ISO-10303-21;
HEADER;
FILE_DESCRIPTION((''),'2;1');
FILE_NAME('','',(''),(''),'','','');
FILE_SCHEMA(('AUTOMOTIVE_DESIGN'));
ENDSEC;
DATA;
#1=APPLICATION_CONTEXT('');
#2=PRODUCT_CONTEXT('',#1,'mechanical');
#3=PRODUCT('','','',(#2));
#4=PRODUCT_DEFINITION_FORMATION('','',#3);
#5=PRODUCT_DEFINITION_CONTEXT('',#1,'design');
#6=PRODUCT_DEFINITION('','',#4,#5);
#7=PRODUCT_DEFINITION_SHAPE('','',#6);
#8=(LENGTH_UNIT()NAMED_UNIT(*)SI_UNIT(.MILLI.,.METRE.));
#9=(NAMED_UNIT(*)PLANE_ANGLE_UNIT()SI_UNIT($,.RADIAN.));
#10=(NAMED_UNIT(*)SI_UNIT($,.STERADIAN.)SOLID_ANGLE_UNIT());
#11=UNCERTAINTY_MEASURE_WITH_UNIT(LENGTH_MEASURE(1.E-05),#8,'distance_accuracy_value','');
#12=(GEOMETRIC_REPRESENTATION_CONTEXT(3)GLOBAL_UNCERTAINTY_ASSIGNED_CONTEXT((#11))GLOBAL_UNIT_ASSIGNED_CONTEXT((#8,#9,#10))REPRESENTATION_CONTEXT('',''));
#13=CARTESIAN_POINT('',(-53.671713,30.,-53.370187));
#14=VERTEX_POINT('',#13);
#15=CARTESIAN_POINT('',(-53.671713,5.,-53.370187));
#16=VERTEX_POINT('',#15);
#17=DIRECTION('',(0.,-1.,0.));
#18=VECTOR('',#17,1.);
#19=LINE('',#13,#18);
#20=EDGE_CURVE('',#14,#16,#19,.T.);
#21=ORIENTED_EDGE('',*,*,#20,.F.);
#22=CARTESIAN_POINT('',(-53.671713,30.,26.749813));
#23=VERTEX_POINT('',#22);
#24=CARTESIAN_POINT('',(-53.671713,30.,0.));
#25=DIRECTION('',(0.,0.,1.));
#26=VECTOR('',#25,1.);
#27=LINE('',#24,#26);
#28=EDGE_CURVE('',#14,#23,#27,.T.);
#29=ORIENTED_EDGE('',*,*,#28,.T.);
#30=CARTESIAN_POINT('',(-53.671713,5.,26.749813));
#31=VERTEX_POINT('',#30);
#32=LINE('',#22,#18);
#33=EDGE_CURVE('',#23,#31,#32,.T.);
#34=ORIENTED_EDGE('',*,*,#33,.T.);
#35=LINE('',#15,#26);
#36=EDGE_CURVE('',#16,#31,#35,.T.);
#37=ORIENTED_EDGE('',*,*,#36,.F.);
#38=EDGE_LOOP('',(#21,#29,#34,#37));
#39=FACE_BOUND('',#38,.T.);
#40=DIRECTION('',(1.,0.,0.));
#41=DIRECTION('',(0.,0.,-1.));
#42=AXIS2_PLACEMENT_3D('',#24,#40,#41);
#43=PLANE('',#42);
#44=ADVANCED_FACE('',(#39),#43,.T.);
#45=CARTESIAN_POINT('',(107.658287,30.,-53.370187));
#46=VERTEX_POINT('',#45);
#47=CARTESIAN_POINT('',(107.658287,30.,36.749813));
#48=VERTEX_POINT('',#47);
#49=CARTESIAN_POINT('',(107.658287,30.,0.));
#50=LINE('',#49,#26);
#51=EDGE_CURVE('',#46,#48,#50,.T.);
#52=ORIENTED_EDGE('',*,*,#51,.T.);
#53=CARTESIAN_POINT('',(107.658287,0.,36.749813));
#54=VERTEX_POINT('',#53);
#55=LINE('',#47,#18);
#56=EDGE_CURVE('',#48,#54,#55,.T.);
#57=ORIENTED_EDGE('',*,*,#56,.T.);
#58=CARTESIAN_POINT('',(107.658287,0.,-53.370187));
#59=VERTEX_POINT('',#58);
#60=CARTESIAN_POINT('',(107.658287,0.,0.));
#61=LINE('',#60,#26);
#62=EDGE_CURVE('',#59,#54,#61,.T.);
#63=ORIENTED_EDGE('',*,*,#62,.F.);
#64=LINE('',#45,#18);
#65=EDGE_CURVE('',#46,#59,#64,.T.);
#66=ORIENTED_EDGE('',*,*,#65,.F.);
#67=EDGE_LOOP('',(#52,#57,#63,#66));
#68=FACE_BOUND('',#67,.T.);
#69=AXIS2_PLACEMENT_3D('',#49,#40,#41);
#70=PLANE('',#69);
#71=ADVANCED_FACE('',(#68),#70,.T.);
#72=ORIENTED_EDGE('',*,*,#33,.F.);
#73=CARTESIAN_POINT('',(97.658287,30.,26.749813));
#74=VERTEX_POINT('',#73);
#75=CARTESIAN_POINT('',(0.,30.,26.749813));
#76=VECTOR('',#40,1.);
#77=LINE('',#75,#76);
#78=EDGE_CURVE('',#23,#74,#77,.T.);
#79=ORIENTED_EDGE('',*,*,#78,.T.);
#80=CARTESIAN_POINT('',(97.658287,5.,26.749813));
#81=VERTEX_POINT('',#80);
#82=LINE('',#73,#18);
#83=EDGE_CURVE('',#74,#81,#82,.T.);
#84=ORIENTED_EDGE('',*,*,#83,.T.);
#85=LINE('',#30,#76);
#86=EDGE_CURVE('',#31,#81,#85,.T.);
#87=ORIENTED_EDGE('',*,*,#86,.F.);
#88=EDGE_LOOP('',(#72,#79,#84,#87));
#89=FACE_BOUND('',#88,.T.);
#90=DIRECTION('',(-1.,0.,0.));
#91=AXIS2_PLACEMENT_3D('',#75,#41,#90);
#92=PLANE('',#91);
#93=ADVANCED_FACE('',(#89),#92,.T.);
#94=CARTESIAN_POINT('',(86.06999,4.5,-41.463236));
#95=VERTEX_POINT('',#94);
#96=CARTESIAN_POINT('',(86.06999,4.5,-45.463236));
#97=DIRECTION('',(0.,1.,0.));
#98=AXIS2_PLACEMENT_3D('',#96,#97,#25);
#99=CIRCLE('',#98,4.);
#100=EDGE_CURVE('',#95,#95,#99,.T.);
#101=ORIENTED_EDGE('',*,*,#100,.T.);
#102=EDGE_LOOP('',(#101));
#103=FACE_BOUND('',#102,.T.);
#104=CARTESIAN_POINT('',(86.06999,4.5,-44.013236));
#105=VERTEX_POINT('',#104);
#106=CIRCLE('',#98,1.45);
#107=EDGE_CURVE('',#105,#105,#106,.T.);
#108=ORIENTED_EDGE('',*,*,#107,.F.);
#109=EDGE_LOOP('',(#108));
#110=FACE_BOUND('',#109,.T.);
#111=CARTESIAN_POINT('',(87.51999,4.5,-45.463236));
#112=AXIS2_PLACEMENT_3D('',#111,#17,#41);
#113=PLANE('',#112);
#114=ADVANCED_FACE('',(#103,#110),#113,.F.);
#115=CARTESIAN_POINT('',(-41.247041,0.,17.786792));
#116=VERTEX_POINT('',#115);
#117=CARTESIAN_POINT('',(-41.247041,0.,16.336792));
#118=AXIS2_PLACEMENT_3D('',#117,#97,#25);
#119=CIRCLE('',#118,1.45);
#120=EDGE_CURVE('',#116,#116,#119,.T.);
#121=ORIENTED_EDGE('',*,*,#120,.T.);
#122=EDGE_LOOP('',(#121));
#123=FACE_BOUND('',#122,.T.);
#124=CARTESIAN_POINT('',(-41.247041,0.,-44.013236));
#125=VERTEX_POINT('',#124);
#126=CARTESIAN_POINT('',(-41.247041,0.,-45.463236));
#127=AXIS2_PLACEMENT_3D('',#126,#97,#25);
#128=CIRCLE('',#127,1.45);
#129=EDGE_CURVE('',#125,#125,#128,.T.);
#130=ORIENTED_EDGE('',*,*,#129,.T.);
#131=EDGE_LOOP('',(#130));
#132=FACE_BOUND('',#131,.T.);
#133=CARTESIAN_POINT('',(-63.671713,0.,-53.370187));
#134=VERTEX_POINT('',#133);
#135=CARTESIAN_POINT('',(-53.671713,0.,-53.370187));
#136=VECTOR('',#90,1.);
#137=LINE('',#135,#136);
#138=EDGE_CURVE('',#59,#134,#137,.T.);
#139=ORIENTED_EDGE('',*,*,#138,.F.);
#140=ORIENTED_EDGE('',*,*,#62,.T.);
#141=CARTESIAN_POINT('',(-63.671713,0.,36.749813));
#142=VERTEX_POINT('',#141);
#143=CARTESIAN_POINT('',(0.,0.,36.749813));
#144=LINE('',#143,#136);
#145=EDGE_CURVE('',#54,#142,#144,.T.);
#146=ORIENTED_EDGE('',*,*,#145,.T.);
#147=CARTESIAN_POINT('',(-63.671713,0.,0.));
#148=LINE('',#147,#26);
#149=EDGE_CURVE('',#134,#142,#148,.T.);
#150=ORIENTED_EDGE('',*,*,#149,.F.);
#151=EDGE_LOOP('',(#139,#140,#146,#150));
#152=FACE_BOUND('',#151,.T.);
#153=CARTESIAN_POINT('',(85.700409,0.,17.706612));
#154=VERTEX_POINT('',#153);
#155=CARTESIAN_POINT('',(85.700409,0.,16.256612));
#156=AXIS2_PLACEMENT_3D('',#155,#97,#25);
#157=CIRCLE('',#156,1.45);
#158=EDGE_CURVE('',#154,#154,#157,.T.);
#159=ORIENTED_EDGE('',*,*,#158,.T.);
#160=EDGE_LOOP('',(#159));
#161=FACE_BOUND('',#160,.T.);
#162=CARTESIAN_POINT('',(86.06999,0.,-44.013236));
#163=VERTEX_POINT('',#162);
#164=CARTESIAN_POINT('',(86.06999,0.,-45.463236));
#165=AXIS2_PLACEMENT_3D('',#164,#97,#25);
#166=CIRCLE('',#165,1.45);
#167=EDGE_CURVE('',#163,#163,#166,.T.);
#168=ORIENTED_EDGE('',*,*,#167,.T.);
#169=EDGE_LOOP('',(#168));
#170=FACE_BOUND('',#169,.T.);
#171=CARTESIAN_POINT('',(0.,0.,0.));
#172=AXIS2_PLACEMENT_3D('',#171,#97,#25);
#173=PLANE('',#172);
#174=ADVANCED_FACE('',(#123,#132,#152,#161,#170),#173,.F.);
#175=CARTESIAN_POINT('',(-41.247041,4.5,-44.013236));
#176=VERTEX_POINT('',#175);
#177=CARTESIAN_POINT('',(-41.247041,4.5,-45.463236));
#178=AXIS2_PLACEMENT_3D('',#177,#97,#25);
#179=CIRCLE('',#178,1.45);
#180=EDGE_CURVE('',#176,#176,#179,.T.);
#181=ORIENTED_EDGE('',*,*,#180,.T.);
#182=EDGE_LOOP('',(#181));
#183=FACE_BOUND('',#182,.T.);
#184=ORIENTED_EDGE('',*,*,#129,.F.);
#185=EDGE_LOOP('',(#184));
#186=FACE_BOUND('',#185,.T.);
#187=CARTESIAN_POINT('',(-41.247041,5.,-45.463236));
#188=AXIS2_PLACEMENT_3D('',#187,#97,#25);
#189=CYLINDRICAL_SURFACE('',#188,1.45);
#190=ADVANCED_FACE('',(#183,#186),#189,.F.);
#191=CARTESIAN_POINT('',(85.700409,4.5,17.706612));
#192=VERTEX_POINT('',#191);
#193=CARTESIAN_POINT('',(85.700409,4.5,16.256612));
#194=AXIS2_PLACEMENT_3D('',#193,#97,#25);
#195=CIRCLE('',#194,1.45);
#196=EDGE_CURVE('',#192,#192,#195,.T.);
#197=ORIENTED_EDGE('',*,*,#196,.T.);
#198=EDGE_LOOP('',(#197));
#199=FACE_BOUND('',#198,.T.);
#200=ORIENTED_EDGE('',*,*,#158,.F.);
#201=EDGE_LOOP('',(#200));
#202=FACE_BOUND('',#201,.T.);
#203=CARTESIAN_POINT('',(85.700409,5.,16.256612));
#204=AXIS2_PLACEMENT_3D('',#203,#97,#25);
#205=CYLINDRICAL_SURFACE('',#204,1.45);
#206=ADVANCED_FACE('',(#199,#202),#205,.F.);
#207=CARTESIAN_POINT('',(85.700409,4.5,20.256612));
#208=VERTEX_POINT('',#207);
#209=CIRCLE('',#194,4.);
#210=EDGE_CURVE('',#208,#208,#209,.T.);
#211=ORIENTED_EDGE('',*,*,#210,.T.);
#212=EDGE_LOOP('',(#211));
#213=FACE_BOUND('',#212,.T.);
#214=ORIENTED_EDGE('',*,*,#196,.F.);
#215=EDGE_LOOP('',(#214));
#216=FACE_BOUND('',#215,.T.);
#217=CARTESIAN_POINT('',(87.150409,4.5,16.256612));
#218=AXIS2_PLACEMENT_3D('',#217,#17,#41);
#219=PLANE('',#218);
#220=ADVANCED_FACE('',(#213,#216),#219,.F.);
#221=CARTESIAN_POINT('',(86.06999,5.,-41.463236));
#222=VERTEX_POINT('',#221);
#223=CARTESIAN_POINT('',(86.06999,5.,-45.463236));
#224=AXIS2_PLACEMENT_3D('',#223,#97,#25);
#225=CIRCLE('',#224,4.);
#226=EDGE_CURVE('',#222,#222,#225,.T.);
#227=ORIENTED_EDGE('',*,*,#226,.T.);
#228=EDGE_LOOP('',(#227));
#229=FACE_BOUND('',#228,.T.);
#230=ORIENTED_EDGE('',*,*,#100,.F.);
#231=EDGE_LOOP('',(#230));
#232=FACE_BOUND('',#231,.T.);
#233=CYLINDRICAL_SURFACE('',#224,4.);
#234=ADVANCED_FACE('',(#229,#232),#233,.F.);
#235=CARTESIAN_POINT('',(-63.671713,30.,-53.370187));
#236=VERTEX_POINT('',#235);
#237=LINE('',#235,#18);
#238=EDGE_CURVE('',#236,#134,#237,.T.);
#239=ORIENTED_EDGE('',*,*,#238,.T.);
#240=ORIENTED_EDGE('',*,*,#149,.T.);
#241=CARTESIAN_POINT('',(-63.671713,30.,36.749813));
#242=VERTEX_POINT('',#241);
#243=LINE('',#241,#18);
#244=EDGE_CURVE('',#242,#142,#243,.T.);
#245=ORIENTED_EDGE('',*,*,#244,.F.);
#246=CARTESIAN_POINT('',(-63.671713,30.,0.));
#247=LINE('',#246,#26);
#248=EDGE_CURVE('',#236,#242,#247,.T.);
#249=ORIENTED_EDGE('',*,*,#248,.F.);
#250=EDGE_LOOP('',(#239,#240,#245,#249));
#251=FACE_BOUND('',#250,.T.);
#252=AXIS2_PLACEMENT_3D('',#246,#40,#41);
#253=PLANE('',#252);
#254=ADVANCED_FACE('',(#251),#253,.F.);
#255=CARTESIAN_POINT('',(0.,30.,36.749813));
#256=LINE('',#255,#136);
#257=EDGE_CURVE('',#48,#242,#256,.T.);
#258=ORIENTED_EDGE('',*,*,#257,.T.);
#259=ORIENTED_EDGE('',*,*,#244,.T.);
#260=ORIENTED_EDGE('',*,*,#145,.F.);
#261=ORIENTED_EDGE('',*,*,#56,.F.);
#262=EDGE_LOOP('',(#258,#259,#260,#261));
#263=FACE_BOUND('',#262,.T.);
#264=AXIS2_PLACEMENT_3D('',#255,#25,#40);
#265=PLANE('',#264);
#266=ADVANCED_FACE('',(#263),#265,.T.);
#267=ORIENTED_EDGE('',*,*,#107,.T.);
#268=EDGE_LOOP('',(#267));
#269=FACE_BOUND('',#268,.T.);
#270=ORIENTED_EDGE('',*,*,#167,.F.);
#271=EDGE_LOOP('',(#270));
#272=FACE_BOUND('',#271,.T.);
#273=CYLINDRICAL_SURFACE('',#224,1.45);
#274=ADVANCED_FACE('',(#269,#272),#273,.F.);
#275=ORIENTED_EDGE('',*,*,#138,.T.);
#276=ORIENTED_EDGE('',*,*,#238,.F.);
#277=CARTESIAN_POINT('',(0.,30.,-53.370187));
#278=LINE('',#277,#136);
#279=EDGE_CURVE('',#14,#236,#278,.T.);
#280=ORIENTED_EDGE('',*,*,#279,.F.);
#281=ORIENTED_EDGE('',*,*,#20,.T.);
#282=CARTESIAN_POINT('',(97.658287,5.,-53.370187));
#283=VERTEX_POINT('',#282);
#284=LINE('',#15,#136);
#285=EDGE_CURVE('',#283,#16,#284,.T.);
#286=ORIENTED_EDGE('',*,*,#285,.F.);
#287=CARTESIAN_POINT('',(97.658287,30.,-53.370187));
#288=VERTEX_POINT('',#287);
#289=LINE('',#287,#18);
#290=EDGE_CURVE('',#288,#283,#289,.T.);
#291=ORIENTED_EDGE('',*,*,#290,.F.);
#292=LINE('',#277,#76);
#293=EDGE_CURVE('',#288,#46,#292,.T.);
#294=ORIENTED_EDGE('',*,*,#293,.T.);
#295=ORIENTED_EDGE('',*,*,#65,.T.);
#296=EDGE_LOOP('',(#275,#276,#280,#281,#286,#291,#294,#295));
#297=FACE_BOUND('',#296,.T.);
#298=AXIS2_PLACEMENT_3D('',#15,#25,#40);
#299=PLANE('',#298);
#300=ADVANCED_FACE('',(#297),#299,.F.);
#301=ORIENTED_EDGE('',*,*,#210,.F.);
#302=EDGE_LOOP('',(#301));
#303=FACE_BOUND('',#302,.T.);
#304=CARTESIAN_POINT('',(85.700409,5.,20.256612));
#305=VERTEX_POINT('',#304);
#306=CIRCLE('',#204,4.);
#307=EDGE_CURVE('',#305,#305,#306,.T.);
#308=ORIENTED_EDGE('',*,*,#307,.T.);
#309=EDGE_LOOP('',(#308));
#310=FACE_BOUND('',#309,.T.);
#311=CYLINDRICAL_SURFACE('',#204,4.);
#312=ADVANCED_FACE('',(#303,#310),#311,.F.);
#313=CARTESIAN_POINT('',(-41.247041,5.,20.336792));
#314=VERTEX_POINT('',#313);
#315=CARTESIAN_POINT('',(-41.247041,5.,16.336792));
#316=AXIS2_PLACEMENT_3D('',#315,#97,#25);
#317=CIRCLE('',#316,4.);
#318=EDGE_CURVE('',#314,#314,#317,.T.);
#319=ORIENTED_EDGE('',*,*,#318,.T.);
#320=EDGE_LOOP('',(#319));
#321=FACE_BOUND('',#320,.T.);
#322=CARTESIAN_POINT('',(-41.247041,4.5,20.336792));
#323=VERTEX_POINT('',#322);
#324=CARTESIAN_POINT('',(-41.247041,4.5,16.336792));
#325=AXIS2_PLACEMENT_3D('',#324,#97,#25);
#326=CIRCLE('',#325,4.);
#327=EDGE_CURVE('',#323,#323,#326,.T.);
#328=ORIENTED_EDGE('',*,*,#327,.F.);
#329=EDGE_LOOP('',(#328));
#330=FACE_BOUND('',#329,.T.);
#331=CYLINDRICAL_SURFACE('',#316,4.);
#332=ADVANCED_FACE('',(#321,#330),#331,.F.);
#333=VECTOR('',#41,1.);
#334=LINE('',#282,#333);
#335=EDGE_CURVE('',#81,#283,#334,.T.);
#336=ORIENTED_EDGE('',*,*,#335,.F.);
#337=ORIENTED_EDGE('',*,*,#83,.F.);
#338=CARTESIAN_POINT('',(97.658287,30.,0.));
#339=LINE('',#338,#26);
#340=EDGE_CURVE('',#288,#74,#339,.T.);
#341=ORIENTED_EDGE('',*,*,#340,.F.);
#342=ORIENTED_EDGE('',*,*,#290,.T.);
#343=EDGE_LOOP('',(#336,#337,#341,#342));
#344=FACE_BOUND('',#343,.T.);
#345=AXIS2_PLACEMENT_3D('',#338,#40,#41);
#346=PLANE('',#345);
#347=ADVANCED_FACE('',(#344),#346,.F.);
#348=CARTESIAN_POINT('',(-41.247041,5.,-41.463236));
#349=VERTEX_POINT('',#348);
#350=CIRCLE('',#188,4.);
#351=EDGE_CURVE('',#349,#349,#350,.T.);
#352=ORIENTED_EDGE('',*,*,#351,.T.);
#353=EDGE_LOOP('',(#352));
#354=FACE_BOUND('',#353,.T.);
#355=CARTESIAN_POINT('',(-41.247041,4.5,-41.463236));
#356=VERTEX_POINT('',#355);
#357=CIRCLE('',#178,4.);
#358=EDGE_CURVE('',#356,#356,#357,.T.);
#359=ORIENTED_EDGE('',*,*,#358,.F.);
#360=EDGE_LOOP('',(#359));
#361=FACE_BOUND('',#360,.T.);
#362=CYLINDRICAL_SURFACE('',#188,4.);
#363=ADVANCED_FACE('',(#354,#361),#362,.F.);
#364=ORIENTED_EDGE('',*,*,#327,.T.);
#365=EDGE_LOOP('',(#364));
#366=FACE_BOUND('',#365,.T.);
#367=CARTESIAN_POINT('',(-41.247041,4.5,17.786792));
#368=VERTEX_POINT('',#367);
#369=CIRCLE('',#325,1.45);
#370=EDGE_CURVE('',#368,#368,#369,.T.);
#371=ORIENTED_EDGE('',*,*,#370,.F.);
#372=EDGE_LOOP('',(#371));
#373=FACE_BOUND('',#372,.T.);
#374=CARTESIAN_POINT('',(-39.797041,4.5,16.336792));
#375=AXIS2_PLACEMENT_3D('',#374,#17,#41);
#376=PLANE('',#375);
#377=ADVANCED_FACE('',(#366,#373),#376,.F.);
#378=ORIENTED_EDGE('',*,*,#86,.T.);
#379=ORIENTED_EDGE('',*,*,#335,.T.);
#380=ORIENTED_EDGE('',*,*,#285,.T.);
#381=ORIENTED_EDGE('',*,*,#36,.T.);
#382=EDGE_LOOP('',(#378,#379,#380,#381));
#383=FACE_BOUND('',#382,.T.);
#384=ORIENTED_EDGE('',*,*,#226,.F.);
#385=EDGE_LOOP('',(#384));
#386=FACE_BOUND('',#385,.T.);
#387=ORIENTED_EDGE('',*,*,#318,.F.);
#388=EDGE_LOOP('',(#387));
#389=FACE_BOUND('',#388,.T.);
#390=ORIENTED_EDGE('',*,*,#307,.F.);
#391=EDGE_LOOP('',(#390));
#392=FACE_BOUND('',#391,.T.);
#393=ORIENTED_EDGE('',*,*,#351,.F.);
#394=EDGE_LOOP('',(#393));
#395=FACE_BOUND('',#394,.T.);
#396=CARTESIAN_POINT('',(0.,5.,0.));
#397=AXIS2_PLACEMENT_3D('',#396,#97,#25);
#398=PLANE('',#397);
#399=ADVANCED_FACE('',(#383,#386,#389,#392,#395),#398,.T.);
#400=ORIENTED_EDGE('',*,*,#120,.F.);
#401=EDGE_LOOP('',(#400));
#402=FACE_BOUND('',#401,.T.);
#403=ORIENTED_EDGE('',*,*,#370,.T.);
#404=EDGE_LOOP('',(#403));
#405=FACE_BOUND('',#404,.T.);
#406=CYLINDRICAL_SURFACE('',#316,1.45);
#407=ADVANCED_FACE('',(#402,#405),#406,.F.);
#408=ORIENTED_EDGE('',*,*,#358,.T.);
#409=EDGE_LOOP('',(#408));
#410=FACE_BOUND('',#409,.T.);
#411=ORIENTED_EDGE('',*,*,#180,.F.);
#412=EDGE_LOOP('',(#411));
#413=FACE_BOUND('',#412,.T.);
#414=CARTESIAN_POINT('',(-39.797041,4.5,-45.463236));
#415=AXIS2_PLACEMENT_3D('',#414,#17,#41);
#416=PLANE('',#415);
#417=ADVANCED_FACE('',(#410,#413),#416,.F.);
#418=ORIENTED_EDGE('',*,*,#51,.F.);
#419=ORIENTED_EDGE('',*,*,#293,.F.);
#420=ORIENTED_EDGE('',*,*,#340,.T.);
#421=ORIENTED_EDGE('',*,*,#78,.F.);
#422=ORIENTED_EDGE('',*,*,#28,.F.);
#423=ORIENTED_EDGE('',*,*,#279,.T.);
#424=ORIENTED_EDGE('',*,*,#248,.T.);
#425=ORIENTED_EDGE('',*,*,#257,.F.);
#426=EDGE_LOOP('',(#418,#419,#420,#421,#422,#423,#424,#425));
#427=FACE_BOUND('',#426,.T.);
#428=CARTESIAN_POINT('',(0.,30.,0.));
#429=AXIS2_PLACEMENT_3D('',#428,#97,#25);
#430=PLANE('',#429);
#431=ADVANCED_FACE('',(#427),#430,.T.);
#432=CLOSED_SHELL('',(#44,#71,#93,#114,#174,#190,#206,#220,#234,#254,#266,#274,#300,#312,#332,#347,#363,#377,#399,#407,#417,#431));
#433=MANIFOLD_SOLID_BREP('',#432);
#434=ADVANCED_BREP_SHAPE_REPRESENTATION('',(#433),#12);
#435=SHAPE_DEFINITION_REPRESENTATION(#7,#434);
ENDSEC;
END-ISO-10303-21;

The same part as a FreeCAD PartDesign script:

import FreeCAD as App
import Part
import Sketcher


def add_polygon(sketch, points):
    """Adds a closed chain of lines whose ends are joined by coincident constraints."""
    first, n = sketch.GeometryCount, len(points)
    for a, b in zip(points, points[1:] + points[:1]):
        sketch.addGeometry(Part.LineSegment(App.Vector(*a, 0), App.Vector(*b, 0)), False)
    for i in range(n):
        sketch.addConstraint(Sketcher.Constraint("Coincident", first + i, 2, first + (i + 1) % n, 1))

doc = App.newDocument("Part")
params = doc.addObject("Spreadsheet::Sheet", "Params")
for row, (alias, value) in enumerate([
    ("sketch1_width", "151.33 mm"),
    ("sketch1_height", "80.12 mm"),
    ("pad1_length", "5 mm"),
    ("sketch2_width", "10 mm"),
    ("sketch2_width2", "171.33 mm"),
    ("sketch2_height", "90.12 mm"),
    ("pad2_length", "30 mm"),
    ("sketch3_diameter", "2.9 mm"),
    ("hole_diameter", "2.9 mm"),
    ("hole_depth", "20 mm"),
    ("hole_cbore_diameter", "8 mm"),
    ("hole_cbore_depth", "0.5 mm"),
], start=1):
    params.set(f"A{row}", alias)
    params.set(f"B{row}", "=" + value)
    params.setAlias(f"B{row}", alias)

body = doc.addObject("PartDesign::Body", "Body")

sketch1 = body.newObject("Sketcher::SketchObject", "Sketch")
sketch1.AttachmentSupport = (doc.getObject("XZ_Plane"), [""])
sketch1.MapMode = "FlatFace"
add_polygon(sketch1, [(-54, -53), (-54, 27), (98, 27), (98, -53)])
sketch1.addConstraint([
    Sketcher.Constraint("Vertical", 0),
    Sketcher.Constraint("Horizontal", 1),
    Sketcher.Constraint("Vertical", 2),
    Sketcher.Constraint("Horizontal", 3),
    Sketcher.Constraint("DistanceX", 1, 1, 1, 2, 151.33),
    Sketcher.Constraint("DistanceY", 0, 1, 0, 2, 80.12),
    Sketcher.Constraint("DistanceX", 0, 2, -1, 1, 53.671713),
    Sketcher.Constraint("DistanceY", -1, 1, 0, 2, 26.749813),
])
sketch1.setExpression("Constraints[8]", "Params.sketch1_width")
sketch1.setExpression("Constraints[9]", "Params.sketch1_height")
pad1 = body.newObject("PartDesign::Pad", "Pad")
pad1.Profile = sketch1
pad1.setExpression("Length", "Params.pad1_length")
pad1.Reversed = True

sketch2 = body.newObject("Sketcher::SketchObject", "Sketch001")
sketch2.AttachmentSupport = (doc.getObject("XZ_Plane"), [""])
sketch2.MapMode = "FlatFace"
add_polygon(sketch2, [(-64, -53), (-64, 37), (108, 37), (108, -53), (98, -53), (98, 27), (-54, 27), (-54, -53)])
sketch2.addConstraint([
    Sketcher.Constraint("Vertical", 0),
    Sketcher.Constraint("Horizontal", 1),
    Sketcher.Constraint("Vertical", 2),
    Sketcher.Constraint("Horizontal", 3),
    Sketcher.Constraint("Vertical", 4),
    Sketcher.Constraint("Horizontal", 5),
    Sketcher.Constraint("Vertical", 6),
    Sketcher.Constraint("Horizontal", 7),
    Sketcher.Constraint("Horizontal", 3, 2, 6, 2),
    Sketcher.Constraint("Equal", 3, 7),
    Sketcher.Constraint("DistanceX", 3, 2, 3, 1, 10.0),
    Sketcher.Constraint("DistanceY", 4, 2, 1, 2, 10.0),
    Sketcher.Constraint("DistanceX", 1, 1, 1, 2, 171.33),
    Sketcher.Constraint("DistanceY", 0, 1, 0, 2, 90.12),
    Sketcher.Constraint("DistanceX", 0, 2, -1, 1, 63.671713),
    Sketcher.Constraint("DistanceY", -1, 1, 0, 2, 36.749813),
])
sketch2.setExpression("Constraints[18]", "Params.sketch2_width")
sketch2.setExpression("Constraints[20]", "Params.sketch2_width2")
sketch2.setExpression("Constraints[21]", "Params.sketch2_height")
pad2 = body.newObject("PartDesign::Pad", "Pad001")
pad2.Profile = sketch2
pad2.setExpression("Length", "Params.pad2_length")
pad2.Reversed = True

sketch3 = body.newObject("Sketcher::SketchObject", "Sketch002")
sketch3.AttachmentSupport = (doc.getObject("XZ_Plane"), [""])
sketch3.MapMode = "FlatFace"
sketch3.AttachmentOffset = App.Placement(App.Vector(0, 0, -5), App.Rotation())
sketch3.addGeometry([
    Part.Circle(App.Vector(85.7, 16.3, 0), App.Vector(0, 0, 1), 1.4),
    Part.Circle(App.Vector(-41.2, 16.3, 0), App.Vector(0, 0, 1), 1.4),
    Part.Circle(App.Vector(-41.2, -45.5, 0), App.Vector(0, 0, 1), 1.4),
    Part.Circle(App.Vector(86.1, -45.5, 0), App.Vector(0, 0, 1), 1.4),
], False)
sketch3.addConstraint([
    Sketcher.Constraint("Equal", 0, 1),
    Sketcher.Constraint("Equal", 1, 2),
    Sketcher.Constraint("Equal", 2, 3),
    Sketcher.Constraint("Horizontal", 2, 3, 3, 3),
    Sketcher.Constraint("Vertical", 1, 3, 2, 3),
    Sketcher.Constraint("Diameter", 0, 2.9),
    Sketcher.Constraint("DistanceX", -1, 1, 0, 3, 85.700409),
    Sketcher.Constraint("DistanceY", -1, 1, 0, 3, 16.256612),
    Sketcher.Constraint("DistanceX", 1, 3, -1, 1, 41.247041),
    Sketcher.Constraint("DistanceX", -1, 1, 3, 3, 86.06999),
    Sketcher.Constraint("DistanceY", 0, 3, 1, 3, 0.080181),
    Sketcher.Constraint("DistanceY", 2, 3, 1, 3, 61.800029),
])
sketch3.setExpression("Constraints[5]", "Params.sketch3_diameter")
doc.recompute()
hole = body.newObject("PartDesign::Hole", "Hole")
hole.Profile = sketch3
hole.ThreadType = "None"
hole.setExpression("Diameter", "Params.hole_diameter")
hole.DepthType = "Dimension"
hole.setExpression("Depth", "Params.hole_depth")
hole.DrillPoint = "Angled"
hole.DrillPointAngle = 118
hole.HoleCutType = "Counterbore"
hole.setExpression("HoleCutDiameter", "Params.hole_cbore_diameter")
hole.setExpression("HoleCutDepth", "Params.hole_cbore_depth")
hole.Reversed = True

doc.recompute()
